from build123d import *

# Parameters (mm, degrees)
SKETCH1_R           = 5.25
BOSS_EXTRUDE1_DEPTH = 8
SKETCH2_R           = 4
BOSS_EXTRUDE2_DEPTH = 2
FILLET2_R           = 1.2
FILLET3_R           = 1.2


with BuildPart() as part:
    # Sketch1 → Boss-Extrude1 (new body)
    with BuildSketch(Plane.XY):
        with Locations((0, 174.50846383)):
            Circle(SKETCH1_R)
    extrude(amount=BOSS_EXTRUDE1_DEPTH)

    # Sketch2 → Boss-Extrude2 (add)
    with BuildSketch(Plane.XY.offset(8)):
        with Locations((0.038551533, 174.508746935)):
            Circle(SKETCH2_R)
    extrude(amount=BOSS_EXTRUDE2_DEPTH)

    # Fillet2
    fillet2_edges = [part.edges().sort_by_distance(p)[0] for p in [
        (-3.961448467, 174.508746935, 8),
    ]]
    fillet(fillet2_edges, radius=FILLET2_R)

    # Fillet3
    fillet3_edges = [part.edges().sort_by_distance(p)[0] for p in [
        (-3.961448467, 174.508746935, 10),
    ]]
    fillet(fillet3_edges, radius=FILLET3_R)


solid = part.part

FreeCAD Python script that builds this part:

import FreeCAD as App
import Part
import Sketcher
from FreeCAD import Vector
Q = App.Units.Quantity


def edges_at(feature, points):
    """Names of the edges that pass closest to the given points."""
    edges = feature.Shape.Edges
    near = lambda p: min(range(len(edges)), key=lambda i: edges[i].distToShape(Part.Vertex(*p))[0])
    return sorted({f"Edge{near(p) + 1}" for p in points})

doc = App.newDocument("Part")
body = doc.addObject("PartDesign::Body", "Body")

# Sketch on XY plane
sketch1 = body.newObject("Sketcher::SketchObject", "Sketch")
sketch1.AttachmentSupport = (doc.getObject("XY_Plane"), [""])
sketch1.MapMode = "FlatFace"
sketch1.addGeometry(Part.Circle(Vector(0, 174.508464, 0), Vector(0, 0, 1), 5.25), False)
sketch1.addConstraint([
    Sketcher.Constraint("PointOnObject", 0, 3, -2),
    Sketcher.Constraint("Diameter", 0, Q("10.5 mm")),
    Sketcher.Constraint("DistanceY", -1, 1, 0, 3, Q("174.508464 mm")),
])
pad1 = body.newObject("PartDesign::Pad", "Pad")
pad1.Profile = sketch1
pad1.Length = 8

# Sketch on XY plane
sketch2 = body.newObject("Sketcher::SketchObject", "Sketch001")
sketch2.AttachmentSupport = (doc.getObject("XY_Plane"), [""])
sketch2.MapMode = "FlatFace"
sketch2.AttachmentOffset = App.Placement(Vector(0, 0, 8), App.Rotation())
sketch2.addGeometry(Part.Circle(Vector(0.038552, 174.508747, 0), Vector(0, 0, 1), 4), False)
sketch2.addConstraint([
    Sketcher.Constraint("Diameter", 0, Q("8 mm")),
    Sketcher.Constraint("DistanceX", -1, 1, 0, 3, Q("0.038552 mm")),
    Sketcher.Constraint("DistanceY", -1, 1, 0, 3, Q("174.508747 mm")),
])
pad2 = body.newObject("PartDesign::Pad", "Pad001")
pad2.Profile = sketch2
pad2.Length = 2
doc.recompute()

fillet = body.newObject("PartDesign::Fillet", "Fillet")
fillet.Base = (pad2, edges_at(pad2, [(-3.961, 174.509, 8)]))
fillet.Radius = 1.2
doc.recompute()

fillet2 = body.newObject("PartDesign::Fillet", "Fillet001")
fillet2.Base = (fillet, edges_at(fillet, [(-3.961, 174.509, 10)]))
fillet2.Radius = 1.2

doc.recompute()
